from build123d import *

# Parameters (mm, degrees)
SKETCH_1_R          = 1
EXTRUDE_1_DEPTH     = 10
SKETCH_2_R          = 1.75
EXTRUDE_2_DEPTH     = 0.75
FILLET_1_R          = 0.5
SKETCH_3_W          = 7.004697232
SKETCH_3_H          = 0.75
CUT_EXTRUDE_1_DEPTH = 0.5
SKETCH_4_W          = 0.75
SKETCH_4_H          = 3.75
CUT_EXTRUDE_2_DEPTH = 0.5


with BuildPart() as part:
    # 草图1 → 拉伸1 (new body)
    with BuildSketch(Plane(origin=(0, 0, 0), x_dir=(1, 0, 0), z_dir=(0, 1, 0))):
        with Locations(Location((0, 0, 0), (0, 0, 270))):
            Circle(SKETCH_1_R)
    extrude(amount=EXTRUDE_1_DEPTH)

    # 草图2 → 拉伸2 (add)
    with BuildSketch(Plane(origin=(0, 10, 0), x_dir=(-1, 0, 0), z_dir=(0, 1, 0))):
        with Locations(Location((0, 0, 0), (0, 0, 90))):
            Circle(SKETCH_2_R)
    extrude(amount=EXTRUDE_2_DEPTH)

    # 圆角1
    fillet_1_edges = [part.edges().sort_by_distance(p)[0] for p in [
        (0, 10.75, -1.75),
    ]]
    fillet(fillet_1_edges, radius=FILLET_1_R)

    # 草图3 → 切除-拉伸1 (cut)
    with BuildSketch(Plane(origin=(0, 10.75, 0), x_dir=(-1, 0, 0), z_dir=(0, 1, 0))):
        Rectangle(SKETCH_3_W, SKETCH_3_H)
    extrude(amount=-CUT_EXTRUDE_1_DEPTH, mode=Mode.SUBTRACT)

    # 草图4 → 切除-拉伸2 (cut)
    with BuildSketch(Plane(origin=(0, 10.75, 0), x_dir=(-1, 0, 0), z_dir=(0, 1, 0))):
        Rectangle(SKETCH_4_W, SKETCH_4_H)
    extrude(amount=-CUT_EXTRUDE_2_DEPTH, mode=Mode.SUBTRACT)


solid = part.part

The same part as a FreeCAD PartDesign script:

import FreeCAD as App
import Part
import Sketcher
Q = App.Units.Quantity


def edges_at(feature, points):
    """Names of the edges that pass closest to the given points."""
    edges = feature.Shape.Edges
    near = lambda p: min(range(len(edges)), key=lambda i: edges[i].distToShape(Part.Vertex(*p))[0])
    return sorted({f"Edge{near(p) + 1}" for p in points})


def add_polygon(sketch, points):
    """Adds a closed chain of lines whose ends are joined by coincident constraints."""
    first, n = sketch.GeometryCount, len(points)
    for a, b in zip(points, points[1:] + points[:1]):
        sketch.addGeometry(Part.LineSegment(App.Vector(*a, 0), App.Vector(*b, 0)), False)
    for i in range(n):
        sketch.addConstraint(Sketcher.Constraint("Coincident", first + i, 2, first + (i + 1) % n, 1))

doc = App.newDocument("Part")
body = doc.addObject("PartDesign::Body", "Body")

# Sketch on XZ plane
sketch1 = body.newObject("Sketcher::SketchObject", "Sketch")
sketch1.AttachmentSupport = (doc.getObject("XZ_Plane"), [""])
sketch1.MapMode = "FlatFace"
sketch1.addGeometry(Part.Circle(App.Vector(0, 0, 0), App.Vector(0, 0, 1), 1), False)
sketch1.addConstraint([
    Sketcher.Constraint("Coincident", 0, 3, -1, 1),
    Sketcher.Constraint("Diameter", 0, Q("2 mm")),
])
pad1 = body.newObject("PartDesign::Pad", "Pad")
pad1.Profile = sketch1
pad1.Length = 10
pad1.Reversed = True

# Sketch on XZ plane
sketch2 = body.newObject("Sketcher::SketchObject", "Sketch001")
sketch2.AttachmentSupport = (doc.getObject("XZ_Plane"), [""])
sketch2.MapMode = "FlatFace"
sketch2.AttachmentOffset = App.Placement(App.Vector(0, 0, -10), App.Rotation())
sketch2.addGeometry(Part.Circle(App.Vector(0, 0, 0), App.Vector(0, 0, 1), 1.8), False)
sketch2.addConstraint([
    Sketcher.Constraint("Coincident", 0, 3, -1, 1),
    Sketcher.Constraint("Diameter", 0, Q("3.5 mm")),
])
pad2 = body.newObject("PartDesign::Pad", "Pad001")
pad2.Profile = sketch2
pad2.Length = 0.75
pad2.Reversed = True
doc.recompute()

fillet = body.newObject("PartDesign::Fillet", "Fillet")
fillet.Base = (pad2, edges_at(pad2, [(0, 10.75, -1.75)]))
fillet.Radius = 0.5

# Sketch on XZ plane
sketch3 = body.newObject("Sketcher::SketchObject", "Sketch002")
sketch3.AttachmentSupport = (doc.getObject("XZ_Plane"), [""])
sketch3.MapMode = "FlatFace"
sketch3.AttachmentOffset = App.Placement(App.Vector(0, 0, -10.75), App.Rotation())
add_polygon(sketch3, [(3.5, 0.4), (3.5, -0.4), (-3.5, -0.4), (-3.5, 0.4)])  # lines 0-3
sketch3.addConstraint([
    Sketcher.Constraint("Vertical", 0),
    Sketcher.Constraint("Horizontal", 1),
    Sketcher.Constraint("Vertical", 2),
    Sketcher.Constraint("Horizontal", 3),
    Sketcher.Constraint("Symmetric", 0, 2, 2, 2, -1, 1),
    Sketcher.Constraint("DistanceY", 0, 2, 0, 1, Q("0.75 mm")),
    Sketcher.Constraint("DistanceX", 1, 2, 1, 1, Q("7.004697 mm")),
])
pocket1 = body.newObject("PartDesign::Pocket", "Pocket")
pocket1.Profile = sketch3
pocket1.Length = 0.5
pocket1.Reversed = True

# Sketch on XZ plane
sketch4 = body.newObject("Sketcher::SketchObject", "Sketch003")
sketch4.AttachmentSupport = (doc.getObject("XZ_Plane"), [""])
sketch4.MapMode = "FlatFace"
sketch4.AttachmentOffset = App.Placement(App.Vector(0, 0, -10.75), App.Rotation())
add_polygon(sketch4, [(0.4, 1.9), (0.4, -1.9), (-0.4, -1.9), (-0.4, 1.9)])  # lines 0-3
sketch4.addConstraint([
    Sketcher.Constraint("Vertical", 0),
    Sketcher.Constraint("Horizontal", 1),
    Sketcher.Constraint("Vertical", 2),
    Sketcher.Constraint("Horizontal", 3),
    Sketcher.Constraint("Symmetric", 0, 2, 2, 2, -1, 1),
    Sketcher.Constraint("DistanceX", 1, 2, 1, 1, Q("0.75 mm")),
    Sketcher.Constraint("DistanceY", 0, 2, 0, 1, Q("3.75 mm")),
])
pocket2 = body.newObject("PartDesign::Pocket", "Pocket001")
pocket2.Profile = sketch4
pocket2.Length = 0.5
pocket2.Reversed = True

doc.recompute()
